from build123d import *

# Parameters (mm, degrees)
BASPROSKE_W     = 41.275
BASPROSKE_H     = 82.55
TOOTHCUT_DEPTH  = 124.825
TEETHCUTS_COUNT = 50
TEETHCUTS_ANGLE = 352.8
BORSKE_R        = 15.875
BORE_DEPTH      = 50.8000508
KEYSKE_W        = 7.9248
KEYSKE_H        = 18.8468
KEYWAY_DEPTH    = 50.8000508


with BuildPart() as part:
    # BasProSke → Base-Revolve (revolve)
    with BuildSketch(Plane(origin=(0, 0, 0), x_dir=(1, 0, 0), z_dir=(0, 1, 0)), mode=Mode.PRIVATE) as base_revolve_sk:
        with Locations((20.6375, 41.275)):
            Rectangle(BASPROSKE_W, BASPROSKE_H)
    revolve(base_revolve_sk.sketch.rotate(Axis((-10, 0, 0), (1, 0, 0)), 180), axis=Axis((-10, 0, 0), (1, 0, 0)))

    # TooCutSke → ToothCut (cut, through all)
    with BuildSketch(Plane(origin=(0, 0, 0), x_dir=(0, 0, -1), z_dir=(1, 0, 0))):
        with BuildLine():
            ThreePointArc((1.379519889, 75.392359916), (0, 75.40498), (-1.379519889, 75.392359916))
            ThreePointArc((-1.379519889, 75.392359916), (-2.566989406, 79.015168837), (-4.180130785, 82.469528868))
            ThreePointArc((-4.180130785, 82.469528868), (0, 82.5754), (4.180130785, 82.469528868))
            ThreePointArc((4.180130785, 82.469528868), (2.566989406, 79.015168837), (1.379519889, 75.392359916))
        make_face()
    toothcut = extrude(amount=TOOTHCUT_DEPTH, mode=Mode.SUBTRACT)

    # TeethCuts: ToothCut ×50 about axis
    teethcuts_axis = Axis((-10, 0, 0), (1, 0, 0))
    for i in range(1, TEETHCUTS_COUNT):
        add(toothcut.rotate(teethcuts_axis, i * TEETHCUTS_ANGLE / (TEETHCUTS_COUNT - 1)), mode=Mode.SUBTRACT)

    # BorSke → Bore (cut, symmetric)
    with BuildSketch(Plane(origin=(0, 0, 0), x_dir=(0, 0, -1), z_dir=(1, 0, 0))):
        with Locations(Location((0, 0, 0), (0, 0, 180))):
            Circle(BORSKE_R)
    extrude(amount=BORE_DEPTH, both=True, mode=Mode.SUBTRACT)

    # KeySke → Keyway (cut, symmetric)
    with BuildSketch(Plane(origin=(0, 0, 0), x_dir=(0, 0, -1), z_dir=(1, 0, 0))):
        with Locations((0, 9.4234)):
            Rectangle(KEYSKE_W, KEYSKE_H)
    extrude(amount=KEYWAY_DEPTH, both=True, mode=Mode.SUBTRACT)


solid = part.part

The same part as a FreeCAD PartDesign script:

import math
import FreeCAD as App
import Part
import Sketcher
Q = App.Units.Quantity

doc = App.newDocument("Part")
body = doc.addObject("PartDesign::Body", "Body")

# Sketch on XZ plane
sketch1 = body.newObject("Sketcher::SketchObject", "Sketch")
sketch1.AttachmentSupport = (doc.getObject("XZ_Plane"), [""])
sketch1.MapMode = "FlatFace"
sketch1.addGeometry(Part.LineSegment(App.Vector(0, -83, 0), App.Vector(0, 0, 0)), False)
sketch1.addGeometry(Part.LineSegment(App.Vector(0, 0, 0), App.Vector(41, 0, 0)), False)
sketch1.addGeometry(Part.LineSegment(App.Vector(41, 0, 0), App.Vector(41, -83, 0)), False)
sketch1.addGeometry(Part.LineSegment(App.Vector(41, -83, 0), App.Vector(0, -83, 0)), False)
sketch1.addConstraint(Sketcher.Constraint("Coincident", 0, 2, 1, 1))
sketch1.addConstraint(Sketcher.Constraint("Coincident", 1, 2, 2, 1))
sketch1.addConstraint(Sketcher.Constraint("Coincident", 2, 2, 3, 1))
sketch1.addConstraint(Sketcher.Constraint("Coincident", 3, 2, 0, 1))
sketch1.addConstraint(Sketcher.Constraint("Vertical", 0))
sketch1.addConstraint(Sketcher.Constraint("Horizontal", 1))
sketch1.addConstraint(Sketcher.Constraint("Vertical", 2))
sketch1.addConstraint(Sketcher.Constraint("Horizontal", 3))
sketch1.addConstraint(Sketcher.Constraint("Coincident", 0, 2, -1, 1))
sketch1.addConstraint(Sketcher.Constraint("DistanceY", 0, 1, 0, 2, Q("3.25 in")))
sketch1.addConstraint(Sketcher.Constraint("DistanceX", 1, 1, 1, 2, Q("1.625 in")))
revolution = body.newObject("PartDesign::Revolution", "Revolution")
revolution.Profile = sketch1
revolution.ReferenceAxis = (sketch1, ["H_Axis"])
revolution.Angle = 360

# Sketch on YZ plane
sketch2 = body.newObject("Sketcher::SketchObject", "Sketch001")
sketch2.AttachmentSupport = (doc.getObject("YZ_Plane"), [""])
sketch2.MapMode = "FlatFace"
sketch2.addGeometry(Part.ArcOfCircle(Part.Circle(App.Vector(0, 0, 0), App.Vector(0, 0, 1), 75.4), math.radians(-1.05), math.radians(1.05)), False)
sketch2.addGeometry(Part.ArcOfCircle(Part.Circle(App.Vector(67.3, -32.1, 0), App.Vector(0, 0, 1), 31.8), math.radians(61.53), math.radians(75.29)), False)
sketch2.addGeometry(Part.ArcOfCircle(Part.Circle(App.Vector(0, 0, 0), App.Vector(0, 0, 1), 82.6), math.radians(-2.9), math.radians(2.9)), False)
sketch2.addGeometry(Part.ArcOfCircle(Part.Circle(App.Vector(67.3, 32.1, 0), App.Vector(0, 0, 1), 31.8), math.radians(-75.29), math.radians(-61.53)), False)
sketch2.addConstraint(Sketcher.Constraint("Coincident", 0, 1, 1, 2))
sketch2.addConstraint(Sketcher.Constraint("Coincident", 1, 1, 2, 1))
sketch2.addConstraint(Sketcher.Constraint("Coincident", 2, 2, 3, 2))
sketch2.addConstraint(Sketcher.Constraint("Coincident", 3, 1, 0, 2))
sketch2.addConstraint(Sketcher.Constraint("Coincident", 0, 3, -1, 1))
sketch2.addConstraint(Sketcher.Constraint("Coincident", 2, 3, -1, 1))
sketch2.addConstraint(Sketcher.Constraint("Equal", 1, 3))
sketch2.addConstraint(Sketcher.Constraint("Symmetric", 1, 3, 3, 3, -1))
sketch2.addConstraint(Sketcher.Constraint("Radius", 1, Q("1.25 in")))
sketch2.addConstraint(Sketcher.Constraint("Radius", 2, Q("3.251 in")))
sketch2.addConstraint(Sketcher.Constraint("Radius", 0, Q("2.9687 in")))
sketch2.addConstraint(Sketcher.Constraint("DistanceX", 2, 3, 1, 3, Q("67.332402 mm")))
sketch2.addConstraint(Sketcher.Constraint("DistanceX", -1, 1, 0, 1, Q("75.39236 mm")))
pocket1 = body.newObject("PartDesign::Pocket", "Pocket")
pocket1.Profile = sketch2
pocket1.Type = "ThroughAll"
pocket1.Reversed = True
doc.recompute()

polarpattern = body.newObject("PartDesign::PolarPattern", "PolarPattern")
polarpattern.Originals = [pocket1]
polarpattern.Axis = (doc.getObject("X_Axis"), [""])
polarpattern.Angle = 360
polarpattern.Occurrences = 50
body.Tip = polarpattern

# Sketch on YZ plane
sketch3 = body.newObject("Sketcher::SketchObject", "Sketch002")
sketch3.AttachmentSupport = (doc.getObject("YZ_Plane"), [""])
sketch3.MapMode = "FlatFace"
sketch3.addGeometry(Part.Circle(App.Vector(0, 0, 0), App.Vector(0, 0, 1), 16), False)
sketch3.addConstraint(Sketcher.Constraint("Coincident", 0, 3, -1, 1))
sketch3.addConstraint(Sketcher.Constraint("Diameter", 0, Q("1.25 in")))
pocket2 = body.newObject("PartDesign::Pocket", "Pocket001")
pocket2.Profile = sketch3
pocket2.Length = 101.600102
pocket2.Midplane = True

# Sketch on YZ plane
sketch4 = body.newObject("Sketcher::SketchObject", "Sketch003")
sketch4.AttachmentSupport = (doc.getObject("YZ_Plane"), [""])
sketch4.MapMode = "FlatFace"
sketch4.addGeometry(Part.LineSegment(App.Vector(19, 4, 0), App.Vector(0, 4, 0)), False)
sketch4.addGeometry(Part.LineSegment(App.Vector(0, 4, 0), App.Vector(0, -4, 0)), False)
sketch4.addGeometry(Part.LineSegment(App.Vector(0, -4, 0), App.Vector(19, -4, 0)), False)
sketch4.addGeometry(Part.LineSegment(App.Vector(19, -4, 0), App.Vector(19, 4, 0)), False)
sketch4.addConstraint(Sketcher.Constraint("Coincident", 0, 2, 1, 1))
sketch4.addConstraint(Sketcher.Constraint("Coincident", 1, 2, 2, 1))
sketch4.addConstraint(Sketcher.Constraint("Coincident", 2, 2, 3, 1))
sketch4.addConstraint(Sketcher.Constraint("Coincident", 3, 2, 0, 1))
sketch4.addConstraint(Sketcher.Constraint("Horizontal", 0))
sketch4.addConstraint(Sketcher.Constraint("Vertical", 1))
sketch4.addConstraint(Sketcher.Constraint("Horizontal", 2))
sketch4.addConstraint(Sketcher.Constraint("Vertical", 3))
sketch4.addConstraint(Sketcher.Constraint("Symmetric", 0, 2, 1, 2, -1, 1))
sketch4.addConstraint(Sketcher.Constraint("DistanceX", 0, 2, 0, 1, Q("0.742 in")))
sketch4.addConstraint(Sketcher.Constraint("DistanceY", 1, 2, 1, 1, Q("0.312 in")))
pocket3 = body.newObject("PartDesign::Pocket", "Pocket002")
pocket3.Profile = sketch4
pocket3.Length = 101.600102
pocket3.Midplane = True

doc.recompute()
